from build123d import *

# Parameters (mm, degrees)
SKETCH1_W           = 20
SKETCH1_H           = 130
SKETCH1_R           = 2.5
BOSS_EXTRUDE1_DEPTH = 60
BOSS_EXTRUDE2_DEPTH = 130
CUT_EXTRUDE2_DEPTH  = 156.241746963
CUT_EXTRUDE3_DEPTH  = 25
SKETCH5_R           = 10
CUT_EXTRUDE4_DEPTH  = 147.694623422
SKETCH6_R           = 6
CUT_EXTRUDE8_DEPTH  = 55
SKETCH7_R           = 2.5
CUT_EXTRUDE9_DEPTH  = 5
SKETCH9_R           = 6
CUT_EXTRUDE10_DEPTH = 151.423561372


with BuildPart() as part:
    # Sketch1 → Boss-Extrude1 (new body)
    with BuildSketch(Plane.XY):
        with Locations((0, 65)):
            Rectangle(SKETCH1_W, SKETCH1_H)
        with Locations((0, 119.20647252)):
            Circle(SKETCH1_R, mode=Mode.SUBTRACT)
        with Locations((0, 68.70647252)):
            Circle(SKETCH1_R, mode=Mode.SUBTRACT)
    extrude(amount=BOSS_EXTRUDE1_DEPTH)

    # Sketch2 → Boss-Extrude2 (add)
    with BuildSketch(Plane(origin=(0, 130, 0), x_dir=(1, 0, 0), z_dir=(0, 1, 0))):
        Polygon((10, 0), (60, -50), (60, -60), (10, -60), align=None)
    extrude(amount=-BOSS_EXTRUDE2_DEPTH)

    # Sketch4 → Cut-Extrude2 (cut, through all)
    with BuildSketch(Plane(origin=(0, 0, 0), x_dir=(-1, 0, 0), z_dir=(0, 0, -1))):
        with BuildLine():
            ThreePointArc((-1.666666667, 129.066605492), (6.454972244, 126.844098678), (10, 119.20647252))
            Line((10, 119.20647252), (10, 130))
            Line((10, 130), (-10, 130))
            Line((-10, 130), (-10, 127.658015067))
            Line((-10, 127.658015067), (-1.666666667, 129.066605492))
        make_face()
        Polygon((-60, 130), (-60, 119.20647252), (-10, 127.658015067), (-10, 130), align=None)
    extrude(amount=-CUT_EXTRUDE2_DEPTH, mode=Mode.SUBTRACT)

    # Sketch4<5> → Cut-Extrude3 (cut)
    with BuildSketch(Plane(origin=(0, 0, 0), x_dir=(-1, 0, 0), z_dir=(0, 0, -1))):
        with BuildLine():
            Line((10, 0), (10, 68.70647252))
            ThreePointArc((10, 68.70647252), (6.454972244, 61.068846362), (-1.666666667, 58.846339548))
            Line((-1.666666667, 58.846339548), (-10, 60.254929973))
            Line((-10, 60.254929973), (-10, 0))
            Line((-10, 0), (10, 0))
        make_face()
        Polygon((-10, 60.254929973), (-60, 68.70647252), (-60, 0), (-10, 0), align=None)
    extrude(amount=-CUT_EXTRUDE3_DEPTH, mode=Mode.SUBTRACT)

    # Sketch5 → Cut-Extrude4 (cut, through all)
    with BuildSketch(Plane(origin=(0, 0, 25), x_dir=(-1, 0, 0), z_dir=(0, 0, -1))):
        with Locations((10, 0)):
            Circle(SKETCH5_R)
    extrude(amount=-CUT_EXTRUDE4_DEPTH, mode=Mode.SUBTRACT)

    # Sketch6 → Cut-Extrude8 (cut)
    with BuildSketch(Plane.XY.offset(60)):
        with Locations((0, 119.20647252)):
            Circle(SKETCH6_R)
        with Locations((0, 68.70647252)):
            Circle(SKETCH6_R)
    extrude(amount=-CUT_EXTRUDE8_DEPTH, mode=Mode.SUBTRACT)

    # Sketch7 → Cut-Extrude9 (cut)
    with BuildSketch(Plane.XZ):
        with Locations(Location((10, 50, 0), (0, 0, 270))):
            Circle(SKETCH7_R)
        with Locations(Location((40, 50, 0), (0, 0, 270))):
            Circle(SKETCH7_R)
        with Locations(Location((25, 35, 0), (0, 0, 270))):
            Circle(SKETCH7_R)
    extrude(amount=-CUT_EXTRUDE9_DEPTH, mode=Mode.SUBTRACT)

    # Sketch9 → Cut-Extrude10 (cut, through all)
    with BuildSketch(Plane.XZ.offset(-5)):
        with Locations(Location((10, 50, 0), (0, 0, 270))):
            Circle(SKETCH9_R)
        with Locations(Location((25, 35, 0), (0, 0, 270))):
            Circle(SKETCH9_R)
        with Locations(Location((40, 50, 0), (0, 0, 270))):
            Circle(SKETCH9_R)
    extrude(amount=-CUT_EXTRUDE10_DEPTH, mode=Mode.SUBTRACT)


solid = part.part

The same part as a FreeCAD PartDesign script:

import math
import FreeCAD as App
import Part
import Sketcher
Q = App.Units.Quantity

doc = App.newDocument("Part")
params = doc.addObject("Spreadsheet::Sheet", "Params")
for row, (alias, value) in enumerate([
    ("sketch1_diameter", "5 mm"),
    ("sketch1_width", "20 mm"),
    ("sketch1_height", "130 mm"),
    ("pad1_length", "60 mm"),
    ("sketch2_width", "50 mm"),
    ("sketch2_height", "60 mm"),
    ("sketch2_height2", "10 mm"),
    ("pad2_length", "130 mm"),
    ("sketch3_radius", "10 mm"),
    ("sketch3_width", "70 mm"),
    ("sketch4_radius", "10 mm"),
    ("sketch4_width", "70 mm"),
    ("pocket2_length", "25 mm"),
    ("sketch5_diameter", "20 mm"),
    ("sketch6_diameter", "12 mm"),
    ("pocket4_length", "55 mm"),
    ("sketch7_diameter", "5 mm"),
    ("pocket5_length", "5 mm"),
    ("sketch8_diameter", "12 mm"),
], start=1):
    params.set(f"A{row}", alias)
    params.set(f"B{row}", "=" + value)
    params.setAlias(f"B{row}", alias)

body = doc.addObject("PartDesign::Body", "Body")

sketch1 = body.newObject("Sketcher::SketchObject", "Sketch")
sketch1.AttachmentSupport = (doc.getObject("XY_Plane"), [""])
sketch1.MapMode = "FlatFace"
sketch1.addGeometry(Part.LineSegment(App.Vector(-10, 130, 0), App.Vector(-10, 0, 0)), False)
sketch1.addGeometry(Part.LineSegment(App.Vector(-10, 0, 0), App.Vector(10, 0, 0)), False)
sketch1.addGeometry(Part.LineSegment(App.Vector(10, 0, 0), App.Vector(10, 130, 0)), False)
sketch1.addGeometry(Part.LineSegment(App.Vector(10, 130, 0), App.Vector(-10, 130, 0)), False)
sketch1.addGeometry(Part.Circle(App.Vector(0, 68.7, 0), App.Vector(0, 0, 1), 2.5), False)
sketch1.addGeometry(Part.Circle(App.Vector(0, 119.2, 0), App.Vector(0, 0, 1), 2.5), False)
sketch1.addConstraint(Sketcher.Constraint("Coincident", 0, 2, 1, 1))
sketch1.addConstraint(Sketcher.Constraint("Coincident", 1, 2, 2, 1))
sketch1.addConstraint(Sketcher.Constraint("Coincident", 2, 2, 3, 1))
sketch1.addConstraint(Sketcher.Constraint("Coincident", 3, 2, 0, 1))
sketch1.addConstraint(Sketcher.Constraint("Vertical", 0))
sketch1.addConstraint(Sketcher.Constraint("Horizontal", 1))
sketch1.addConstraint(Sketcher.Constraint("Vertical", 2))
sketch1.addConstraint(Sketcher.Constraint("Horizontal", 3))
sketch1.addConstraint(Sketcher.Constraint("Equal", 4, 5))
sketch1.addConstraint(Sketcher.Constraint("Symmetric", 0, 2, 1, 2, -1, 1))
sketch1.addConstraint(Sketcher.Constraint("PointOnObject", 4, 3, -2))
sketch1.addConstraint(Sketcher.Constraint("PointOnObject", 5, 3, -2))
sketch1.addConstraint(Sketcher.Constraint("Diameter", 4, Q("5 mm")))
sketch1.addConstraint(Sketcher.Constraint("DistanceX", 1, 1, 1, 2, Q("20 mm")))
sketch1.addConstraint(Sketcher.Constraint("DistanceY", 0, 2, 0, 1, Q("130 mm")))
sketch1.addConstraint(Sketcher.Constraint("DistanceY", 4, 3, 5, 3, Q("50.5 mm")))
sketch1.addConstraint(Sketcher.Constraint("DistanceY", -1, 1, 4, 3, Q("68.706473 mm")))
sketch1.setExpression("Constraints[12]", "Params.sketch1_diameter")
sketch1.setExpression("Constraints[13]", "Params.sketch1_width")
sketch1.setExpression("Constraints[14]", "Params.sketch1_height")
pad1 = body.newObject("PartDesign::Pad", "Pad")
pad1.Profile = sketch1
pad1.setExpression("Length", "Params.pad1_length")

sketch2 = body.newObject("Sketcher::SketchObject", "Sketch001")
sketch2.AttachmentSupport = (doc.getObject("XZ_Plane"), [""])
sketch2.MapMode = "FlatFace"
sketch2.AttachmentOffset = App.Placement(App.Vector(0, 0, -130), App.Rotation())
sketch2.addGeometry(Part.LineSegment(App.Vector(60, 50, 0), App.Vector(10, 0, 0)), False)
sketch2.addGeometry(Part.LineSegment(App.Vector(10, 0, 0), App.Vector(10, 60, 0)), False)
sketch2.addGeometry(Part.LineSegment(App.Vector(10, 60, 0), App.Vector(60, 60, 0)), False)
sketch2.addGeometry(Part.LineSegment(App.Vector(60, 60, 0), App.Vector(60, 50, 0)), False)
sketch2.addConstraint(Sketcher.Constraint("Coincident", 0, 2, 1, 1))
sketch2.addConstraint(Sketcher.Constraint("Coincident", 1, 2, 2, 1))
sketch2.addConstraint(Sketcher.Constraint("Coincident", 2, 2, 3, 1))
sketch2.addConstraint(Sketcher.Constraint("Coincident", 3, 2, 0, 1))
sketch2.addConstraint(Sketcher.Constraint("Vertical", 1))
sketch2.addConstraint(Sketcher.Constraint("Horizontal", 2))
sketch2.addConstraint(Sketcher.Constraint("Vertical", 3))
sketch2.addConstraint(Sketcher.Constraint("PointOnObject", 0, 2, -1))
sketch2.addConstraint(Sketcher.Constraint("DistanceX", 2, 1, 2, 2, Q("50 mm")))
sketch2.addConstraint(Sketcher.Constraint("DistanceY", 1, 1, 1, 2, Q("60 mm")))
sketch2.addConstraint(Sketcher.Constraint("DistanceY", 3, 2, 3, 1, Q("10 mm")))
sketch2.addConstraint(Sketcher.Constraint("DistanceX", -1, 1, 0, 2, Q("10 mm")))
sketch2.setExpression("Constraints[8]", "Params.sketch2_width")
sketch2.setExpression("Constraints[9]", "Params.sketch2_height")
sketch2.setExpression("Constraints[10]", "Params.sketch2_height2")
pad2 = body.newObject("PartDesign::Pad", "Pad001")
pad2.Profile = sketch2
pad2.setExpression("Length", "Params.pad2_length")

sketch3 = body.newObject("Sketcher::SketchObject", "Sketch002")
sketch3.AttachmentSupport = (doc.getObject("XY_Plane"), [""])
sketch3.MapMode = "FlatFace"
sketch3.addGeometry(Part.ArcOfCircle(Part.Circle(App.Vector(0, 119, 0), App.Vector(0, 0, 1), 10), math.radians(80), math.radians(180)), False)
sketch3.addGeometry(Part.LineSegment(App.Vector(-10, 119, 0), App.Vector(-10, 130, 0)), False)
sketch3.addGeometry(Part.LineSegment(App.Vector(-10, 130, 0), App.Vector(60, 130, 0)), False)
sketch3.addGeometry(Part.LineSegment(App.Vector(60, 130, 0), App.Vector(60, 119, 0)), False)
sketch3.addGeometry(Part.LineSegment(App.Vector(60, 119, 0), App.Vector(10, 128, 0)), False)
sketch3.addGeometry(Part.LineSegment(App.Vector(10, 128, 0), App.Vector(2, 129, 0)), False)
sketch3.addConstraint(Sketcher.Constraint("Tangent", 0, 2, 1, 1))
sketch3.addConstraint(Sketcher.Constraint("Coincident", 1, 2, 2, 1))
sketch3.addConstraint(Sketcher.Constraint("Coincident", 2, 2, 3, 1))
sketch3.addConstraint(Sketcher.Constraint("Coincident", 3, 2, 4, 1))
sketch3.addConstraint(Sketcher.Constraint("Coincident", 4, 2, 5, 1))
sketch3.addConstraint(Sketcher.Constraint("Tangent", 5, 2, 0, 1))
sketch3.addConstraint(Sketcher.Constraint("Vertical", 1))
sketch3.addConstraint(Sketcher.Constraint("Horizontal", 2))
sketch3.addConstraint(Sketcher.Constraint("Vertical", 3))
sketch3.addConstraint(Sketcher.Constraint("PointOnObject", 0, 3, -2))
sketch3.addConstraint(Sketcher.Constraint("Parallel", 4, 5))
sketch3.addConstraint(Sketcher.Constraint("Horizontal", 0, 2, 3, 2))
sketch3.addConstraint(Sketcher.Constraint("Radius", 0, Q("10 mm")))
sketch3.addConstraint(Sketcher.Constraint("DistanceX", 2, 1, 2, 2, Q("70 mm")))
sketch3.addConstraint(Sketcher.Constraint("DistanceY", -1, 1, 1, 2, Q("130 mm")))
sketch3.addConstraint(Sketcher.Constraint("DistanceX", -1, 1, 4, 2, Q("10 mm")))
sketch3.addConstraint(Sketcher.Constraint("DistanceY", 1, 1, 1, 2, Q("10.793527 mm")))
sketch3.setExpression("Constraints[12]", "Params.sketch3_radius")
sketch3.setExpression("Constraints[13]", "Params.sketch3_width")
pocket1 = body.newObject("PartDesign::Pocket", "Pocket")
pocket1.Profile = sketch3
pocket1.Type = "ThroughAll"
pocket1.Reversed = True

sketch4 = body.newObject("Sketcher::SketchObject", "Sketch003")
sketch4.AttachmentSupport = (doc.getObject("XY_Plane"), [""])
sketch4.MapMode = "FlatFace"
sketch4.addGeometry(Part.LineSegment(App.Vector(-10, 0, 0), App.Vector(-10, 69, 0)), False)
sketch4.addGeometry(Part.ArcOfCircle(Part.Circle(App.Vector(0, 69, 0), App.Vector(0, 0, 1), 10), math.radians(180), math.radians(280)), False)
sketch4.addGeometry(Part.LineSegment(App.Vector(2, 59, 0), App.Vector(10, 60, 0)), False)
sketch4.addGeometry(Part.LineSegment(App.Vector(10, 60, 0), App.Vector(60, 69, 0)), False)
sketch4.addGeometry(Part.LineSegment(App.Vector(60, 69, 0), App.Vector(60, 0, 0)), False)
sketch4.addGeometry(Part.LineSegment(App.Vector(60, 0, 0), App.Vector(-10, 0, 0)), False)
sketch4.addConstraint(Sketcher.Constraint("Tangent", 0, 2, 1, 1))
sketch4.addConstraint(Sketcher.Constraint("Tangent", 1, 2, 2, 1))
sketch4.addConstraint(Sketcher.Constraint("Coincident", 2, 2, 3, 1))
sketch4.addConstraint(Sketcher.Constraint("Coincident", 3, 2, 4, 1))
sketch4.addConstraint(Sketcher.Constraint("Coincident", 4, 2, 5, 1))
sketch4.addConstraint(Sketcher.Constraint("Coincident", 5, 2, 0, 1))
sketch4.addConstraint(Sketcher.Constraint("Vertical", 0))
sketch4.addConstraint(Sketcher.Constraint("Vertical", 4))
sketch4.addConstraint(Sketcher.Constraint("Horizontal", 5))
sketch4.addConstraint(Sketcher.Constraint("PointOnObject", 1, 3, -2))
sketch4.addConstraint(Sketcher.Constraint("PointOnObject", 4, 2, -1))
sketch4.addConstraint(Sketcher.Constraint("Parallel", 2, 3))
sketch4.addConstraint(Sketcher.Constraint("Horizontal", 0, 2, 3, 2))
sketch4.addConstraint(Sketcher.Constraint("Radius", 1, Q("10 mm")))
sketch4.addConstraint(Sketcher.Constraint("DistanceX", 5, 2, 5, 1, Q("70 mm")))
sketch4.addConstraint(Sketcher.Constraint("DistanceX", -1, 1, 2, 2, Q("10 mm")))
sketch4.addConstraint(Sketcher.Constraint("DistanceY", 0, 1, 0, 2, Q("68.706473 mm")))
sketch4.setExpression("Constraints[13]", "Params.sketch4_radius")
sketch4.setExpression("Constraints[14]", "Params.sketch4_width")
pocket2 = body.newObject("PartDesign::Pocket", "Pocket001")
pocket2.Profile = sketch4
pocket2.setExpression("Length", "Params.pocket2_length")
pocket2.Reversed = True

sketch5 = body.newObject("Sketcher::SketchObject", "Sketch004")
sketch5.AttachmentSupport = (doc.getObject("XY_Plane"), [""])
sketch5.MapMode = "FlatFace"
sketch5.AttachmentOffset = App.Placement(App.Vector(0, 0, 25), App.Rotation())
sketch5.addGeometry(Part.Circle(App.Vector(-10, 0, 0), App.Vector(0, 0, 1), 10), False)
sketch5.addConstraint(Sketcher.Constraint("PointOnObject", 0, 3, -1))
sketch5.addConstraint(Sketcher.Constraint("Diameter", 0, Q("20 mm")))
sketch5.addConstraint(Sketcher.Constraint("DistanceX", 0, 3, -1, 1, Q("10 mm")))
sketch5.setExpression("Constraints[1]", "Params.sketch5_diameter")
pocket3 = body.newObject("PartDesign::Pocket", "Pocket002")
pocket3.Profile = sketch5
pocket3.Type = "ThroughAll"
pocket3.Reversed = True

sketch6 = body.newObject("Sketcher::SketchObject", "Sketch005")
sketch6.AttachmentSupport = (doc.getObject("XY_Plane"), [""])
sketch6.MapMode = "FlatFace"
sketch6.AttachmentOffset = App.Placement(App.Vector(0, 0, 60), App.Rotation())
sketch6.addGeometry(Part.Circle(App.Vector(0, 119, 0), App.Vector(0, 0, 1), 6), False)
sketch6.addGeometry(Part.Circle(App.Vector(0, 69, 0), App.Vector(0, 0, 1), 6), False)
sketch6.addConstraint(Sketcher.Constraint("Equal", 0, 1))
sketch6.addConstraint(Sketcher.Constraint("PointOnObject", 0, 3, -2))
sketch6.addConstraint(Sketcher.Constraint("PointOnObject", 1, 3, -2))
sketch6.addConstraint(Sketcher.Constraint("Diameter", 0, Q("12 mm")))
sketch6.addConstraint(Sketcher.Constraint("DistanceY", 1, 3, 0, 3, Q("50.5 mm")))
sketch6.addConstraint(Sketcher.Constraint("DistanceY", -1, 1, 0, 3, Q("119.206473 mm")))
sketch6.setExpression("Constraints[3]", "Params.sketch6_diameter")
pocket4 = body.newObject("PartDesign::Pocket", "Pocket003")
pocket4.Profile = sketch6
pocket4.setExpression("Length", "Params.pocket4_length")

sketch7 = body.newObject("Sketcher::SketchObject", "Sketch006")
sketch7.AttachmentSupport = (doc.getObject("XZ_Plane"), [""])
sketch7.MapMode = "FlatFace"
sketch7.addGeometry(Part.Circle(App.Vector(10, 50, 0), App.Vector(0, 0, 1), 2.5), False)
sketch7.addGeometry(Part.Circle(App.Vector(40, 50, 0), App.Vector(0, 0, 1), 2.5), False)
sketch7.addGeometry(Part.Circle(App.Vector(25, 35, 0), App.Vector(0, 0, 1), 2.5), False)
sketch7.addConstraint(Sketcher.Constraint("Equal", 0, 1))
sketch7.addConstraint(Sketcher.Constraint("Equal", 1, 2))
sketch7.addConstraint(Sketcher.Constraint("Horizontal", 0, 3, 1, 3))
sketch7.addConstraint(Sketcher.Constraint("Diameter", 0, Q("5 mm")))
sketch7.addConstraint(Sketcher.Constraint("DistanceX", -1, 1, 0, 3, Q("10 mm")))
sketch7.addConstraint(Sketcher.Constraint("DistanceY", -1, 1, 0, 3, Q("50 mm")))
sketch7.addConstraint(Sketcher.Constraint("DistanceX", -1, 1, 1, 3, Q("40 mm")))
sketch7.addConstraint(Sketcher.Constraint("DistanceX", -1, 1, 2, 3, Q("25 mm")))
sketch7.addConstraint(Sketcher.Constraint("DistanceY", -1, 1, 2, 3, Q("35 mm")))
sketch7.setExpression("Constraints[3]", "Params.sketch7_diameter")
pocket5 = body.newObject("PartDesign::Pocket", "Pocket004")
pocket5.Profile = sketch7
pocket5.setExpression("Length", "Params.pocket5_length")

sketch8 = body.newObject("Sketcher::SketchObject", "Sketch007")
sketch8.AttachmentSupport = (doc.getObject("XZ_Plane"), [""])
sketch8.MapMode = "FlatFace"
sketch8.AttachmentOffset = App.Placement(App.Vector(0, 0, -5), App.Rotation())
sketch8.addGeometry(Part.Circle(App.Vector(10, 50, 0), App.Vector(0, 0, 1), 6), False)
sketch8.addGeometry(Part.Circle(App.Vector(25, 35, 0), App.Vector(0, 0, 1), 6), False)
sketch8.addGeometry(Part.Circle(App.Vector(40, 50, 0), App.Vector(0, 0, 1), 6), False)
sketch8.addConstraint(Sketcher.Constraint("Equal", 0, 1))
sketch8.addConstraint(Sketcher.Constraint("Equal", 1, 2))
sketch8.addConstraint(Sketcher.Constraint("Horizontal", 0, 3, 2, 3))
sketch8.addConstraint(Sketcher.Constraint("Diameter", 0, Q("12 mm")))
sketch8.addConstraint(Sketcher.Constraint("DistanceX", -1, 1, 0, 3, Q("10 mm")))
sketch8.addConstraint(Sketcher.Constraint("DistanceY", -1, 1, 0, 3, Q("50 mm")))
sketch8.addConstraint(Sketcher.Constraint("DistanceX", -1, 1, 1, 3, Q("25 mm")))
sketch8.addConstraint(Sketcher.Constraint("DistanceY", -1, 1, 1, 3, Q("35 mm")))
sketch8.addConstraint(Sketcher.Constraint("DistanceX", -1, 1, 2, 3, Q("40 mm")))
sketch8.setExpression("Constraints[3]", "Params.sketch8_diameter")
pocket6 = body.newObject("PartDesign::Pocket", "Pocket005")
pocket6.Profile = sketch8
pocket6.Type = "ThroughAll"

doc.recompute()
